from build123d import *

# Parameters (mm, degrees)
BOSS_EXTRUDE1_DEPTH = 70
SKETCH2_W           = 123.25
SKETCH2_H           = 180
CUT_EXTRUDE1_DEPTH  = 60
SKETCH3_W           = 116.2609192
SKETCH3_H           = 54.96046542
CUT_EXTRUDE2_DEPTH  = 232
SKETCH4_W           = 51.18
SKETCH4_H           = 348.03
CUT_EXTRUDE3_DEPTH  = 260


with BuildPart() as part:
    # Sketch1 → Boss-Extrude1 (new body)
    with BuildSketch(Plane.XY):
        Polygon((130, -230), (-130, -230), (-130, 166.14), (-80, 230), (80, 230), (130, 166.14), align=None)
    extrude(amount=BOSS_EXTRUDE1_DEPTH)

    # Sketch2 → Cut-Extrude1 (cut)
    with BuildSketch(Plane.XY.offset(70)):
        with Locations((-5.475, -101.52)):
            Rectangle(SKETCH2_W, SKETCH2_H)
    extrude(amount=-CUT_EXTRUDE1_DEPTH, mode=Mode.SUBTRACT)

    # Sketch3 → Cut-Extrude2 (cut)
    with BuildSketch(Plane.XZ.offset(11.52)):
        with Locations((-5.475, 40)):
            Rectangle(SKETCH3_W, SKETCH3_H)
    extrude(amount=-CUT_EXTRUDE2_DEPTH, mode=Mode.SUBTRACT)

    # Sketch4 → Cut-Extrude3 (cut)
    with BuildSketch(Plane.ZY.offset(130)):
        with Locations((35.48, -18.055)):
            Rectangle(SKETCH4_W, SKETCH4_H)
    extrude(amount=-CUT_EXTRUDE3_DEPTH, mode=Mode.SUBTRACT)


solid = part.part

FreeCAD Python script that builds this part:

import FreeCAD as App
import Part
import Sketcher

doc = App.newDocument("Part")
body = doc.addObject("PartDesign::Body", "Body")

# Sketch on XY plane
sketch1 = doc.addObject("Sketcher::SketchObject", "Sketch")
body.addObject(sketch1)
sketch1.AttachmentSupport = (doc.XY_Plane, [""])
sketch1.MapMode = "FlatFace"
sketch1.addGeometry(Part.LineSegment(App.Vector(-130, -230, 0), App.Vector(130, -230, 0)), False)
sketch1.addGeometry(Part.LineSegment(App.Vector(130, -230, 0), App.Vector(130, 166, 0)), False)
sketch1.addGeometry(Part.LineSegment(App.Vector(130, 166, 0), App.Vector(80, 230, 0)), False)
sketch1.addGeometry(Part.LineSegment(App.Vector(80, 230, 0), App.Vector(-80, 230, 0)), False)
sketch1.addGeometry(Part.LineSegment(App.Vector(-80, 230, 0), App.Vector(-130, 166, 0)), False)
sketch1.addGeometry(Part.LineSegment(App.Vector(-130, 166, 0), App.Vector(-130, -230, 0)), False)
sketch1.addConstraint(Sketcher.Constraint("Coincident", 0, 2, 1, 1))
sketch1.addConstraint(Sketcher.Constraint("Coincident", 1, 2, 2, 1))
sketch1.addConstraint(Sketcher.Constraint("Coincident", 2, 2, 3, 1))
sketch1.addConstraint(Sketcher.Constraint("Coincident", 3, 2, 4, 1))
sketch1.addConstraint(Sketcher.Constraint("Coincident", 4, 2, 5, 1))
sketch1.addConstraint(Sketcher.Constraint("Coincident", 5, 2, 0, 1))
sketch1.addConstraint(Sketcher.Constraint("Horizontal", 0))
sketch1.addConstraint(Sketcher.Constraint("Vertical", 1))
sketch1.addConstraint(Sketcher.Constraint("Horizontal", 3))
sketch1.addConstraint(Sketcher.Constraint("Vertical", 5))
sketch1.addConstraint(Sketcher.Constraint("Symmetric", 1, 2, 4, 2, -2))
sketch1.addConstraint(Sketcher.Constraint("Equal", 2, 4))
sketch1.addConstraint(Sketcher.Constraint("DistanceX", 0, 1, 0, 2, 260.0))
sketch1.addConstraint(Sketcher.Constraint("DistanceX", 3, 2, 3, 1, 160.0))
sketch1.addConstraint(Sketcher.Constraint("DistanceY", 0, 2, -1, 1, 230.0))
sketch1.addConstraint(Sketcher.Constraint("DistanceY", -1, 1, 2, 2, 230.0))
sketch1.addConstraint(Sketcher.Constraint("DistanceY", 1, 1, 1, 2, 396.14))
pad1 = doc.addObject("PartDesign::Pad", "Pad")
body.addObject(pad1)
pad1.Profile = sketch1
pad1.Length = 70

# Sketch on XY plane
sketch2 = doc.addObject("Sketcher::SketchObject", "Sketch001")
body.addObject(sketch2)
sketch2.AttachmentSupport = (doc.XY_Plane, [""])
sketch2.MapMode = "FlatFace"
sketch2.AttachmentOffset = App.Placement(App.Vector(0, 0, 70), App.Rotation())
sketch2.addGeometry(Part.LineSegment(App.Vector(-67, -12, 0), App.Vector(-67, -192, 0)), False)
sketch2.addGeometry(Part.LineSegment(App.Vector(-67, -192, 0), App.Vector(56, -192, 0)), False)
sketch2.addGeometry(Part.LineSegment(App.Vector(56, -192, 0), App.Vector(56, -12, 0)), False)
sketch2.addGeometry(Part.LineSegment(App.Vector(56, -12, 0), App.Vector(-67, -12, 0)), False)
sketch2.addConstraint(Sketcher.Constraint("Coincident", 0, 2, 1, 1))
sketch2.addConstraint(Sketcher.Constraint("Coincident", 1, 2, 2, 1))
sketch2.addConstraint(Sketcher.Constraint("Coincident", 2, 2, 3, 1))
sketch2.addConstraint(Sketcher.Constraint("Coincident", 3, 2, 0, 1))
sketch2.addConstraint(Sketcher.Constraint("Vertical", 0))
sketch2.addConstraint(Sketcher.Constraint("Horizontal", 1))
sketch2.addConstraint(Sketcher.Constraint("Vertical", 2))
sketch2.addConstraint(Sketcher.Constraint("Horizontal", 3))
sketch2.addConstraint(Sketcher.Constraint("DistanceY", 0, 2, 0, 1, 180.0))
sketch2.addConstraint(Sketcher.Constraint("DistanceX", 1, 1, 1, 2, 123.25))
sketch2.addConstraint(Sketcher.Constraint("DistanceX", 0, 2, -1, 1, 67.1))
sketch2.addConstraint(Sketcher.Constraint("DistanceY", 0, 2, -1, 1, 191.52))
pocket1 = doc.addObject("PartDesign::Pocket", "Pocket")
body.addObject(pocket1)
pocket1.Profile = sketch2
pocket1.Length = 60

# Sketch on XZ plane
sketch3 = doc.addObject("Sketcher::SketchObject", "Sketch002")
body.addObject(sketch3)
sketch3.AttachmentSupport = (doc.XZ_Plane, [""])
sketch3.MapMode = "FlatFace"
sketch3.AttachmentOffset = App.Placement(App.Vector(0, 0, 11.52), App.Rotation())
sketch3.addGeometry(Part.LineSegment(App.Vector(-64, 67, 0), App.Vector(-64, 13, 0)), False)
sketch3.addGeometry(Part.LineSegment(App.Vector(-64, 13, 0), App.Vector(53, 13, 0)), False)
sketch3.addGeometry(Part.LineSegment(App.Vector(53, 13, 0), App.Vector(53, 67, 0)), False)
sketch3.addGeometry(Part.LineSegment(App.Vector(53, 67, 0), App.Vector(-64, 67, 0)), False)
sketch3.addConstraint(Sketcher.Constraint("Coincident", 0, 2, 1, 1))
sketch3.addConstraint(Sketcher.Constraint("Coincident", 1, 2, 2, 1))
sketch3.addConstraint(Sketcher.Constraint("Coincident", 2, 2, 3, 1))
sketch3.addConstraint(Sketcher.Constraint("Coincident", 3, 2, 0, 1))
sketch3.addConstraint(Sketcher.Constraint("Vertical", 0))
sketch3.addConstraint(Sketcher.Constraint("Horizontal", 1))
sketch3.addConstraint(Sketcher.Constraint("Vertical", 2))
sketch3.addConstraint(Sketcher.Constraint("Horizontal", 3))
sketch3.addConstraint(Sketcher.Constraint("DistanceX", 1, 1, 1, 2, 116.260919))
sketch3.addConstraint(Sketcher.Constraint("DistanceY", 0, 2, 0, 1, 54.960465))
sketch3.addConstraint(Sketcher.Constraint("DistanceX", 0, 2, -1, 1, 63.60546))
sketch3.addConstraint(Sketcher.Constraint("DistanceY", -1, 1, 0, 2, 12.519767))
pocket2 = doc.addObject("PartDesign::Pocket", "Pocket001")
body.addObject(pocket2)
pocket2.Profile = sketch3
pocket2.Length = 232

# Sketch on YZ plane
sketch4 = doc.addObject("Sketcher::SketchObject", "Sketch003")
body.addObject(sketch4)
sketch4.AttachmentSupport = (doc.YZ_Plane, [""])
sketch4.MapMode = "FlatFace"
sketch4.AttachmentOffset = App.Placement(App.Vector(0, 0, -130), App.Rotation())
sketch4.addGeometry(Part.LineSegment(App.Vector(156, 10, 0), App.Vector(-192, 10, 0)), False)
sketch4.addGeometry(Part.LineSegment(App.Vector(-192, 10, 0), App.Vector(-192, 61, 0)), False)
sketch4.addGeometry(Part.LineSegment(App.Vector(-192, 61, 0), App.Vector(156, 61, 0)), False)
sketch4.addGeometry(Part.LineSegment(App.Vector(156, 61, 0), App.Vector(156, 10, 0)), False)
sketch4.addConstraint(Sketcher.Constraint("Coincident", 0, 2, 1, 1))
sketch4.addConstraint(Sketcher.Constraint("Coincident", 1, 2, 2, 1))
sketch4.addConstraint(Sketcher.Constraint("Coincident", 2, 2, 3, 1))
sketch4.addConstraint(Sketcher.Constraint("Coincident", 3, 2, 0, 1))
sketch4.addConstraint(Sketcher.Constraint("Horizontal", 0))
sketch4.addConstraint(Sketcher.Constraint("Vertical", 1))
sketch4.addConstraint(Sketcher.Constraint("Horizontal", 2))
sketch4.addConstraint(Sketcher.Constraint("Vertical", 3))
sketch4.addConstraint(Sketcher.Constraint("DistanceX", 0, 2, 0, 1, 348.03))
sketch4.addConstraint(Sketcher.Constraint("DistanceY", 1, 1, 1, 2, 51.18))
sketch4.addConstraint(Sketcher.Constraint("DistanceX", 0, 2, -1, 1, 192.07))
sketch4.addConstraint(Sketcher.Constraint("DistanceY", -1, 1, 0, 2, 9.89))
pocket3 = doc.addObject("PartDesign::Pocket", "Pocket002")
body.addObject(pocket3)
pocket3.Profile = sketch4
pocket3.Length = 260
pocket3.Reversed = True

doc.recompute()
